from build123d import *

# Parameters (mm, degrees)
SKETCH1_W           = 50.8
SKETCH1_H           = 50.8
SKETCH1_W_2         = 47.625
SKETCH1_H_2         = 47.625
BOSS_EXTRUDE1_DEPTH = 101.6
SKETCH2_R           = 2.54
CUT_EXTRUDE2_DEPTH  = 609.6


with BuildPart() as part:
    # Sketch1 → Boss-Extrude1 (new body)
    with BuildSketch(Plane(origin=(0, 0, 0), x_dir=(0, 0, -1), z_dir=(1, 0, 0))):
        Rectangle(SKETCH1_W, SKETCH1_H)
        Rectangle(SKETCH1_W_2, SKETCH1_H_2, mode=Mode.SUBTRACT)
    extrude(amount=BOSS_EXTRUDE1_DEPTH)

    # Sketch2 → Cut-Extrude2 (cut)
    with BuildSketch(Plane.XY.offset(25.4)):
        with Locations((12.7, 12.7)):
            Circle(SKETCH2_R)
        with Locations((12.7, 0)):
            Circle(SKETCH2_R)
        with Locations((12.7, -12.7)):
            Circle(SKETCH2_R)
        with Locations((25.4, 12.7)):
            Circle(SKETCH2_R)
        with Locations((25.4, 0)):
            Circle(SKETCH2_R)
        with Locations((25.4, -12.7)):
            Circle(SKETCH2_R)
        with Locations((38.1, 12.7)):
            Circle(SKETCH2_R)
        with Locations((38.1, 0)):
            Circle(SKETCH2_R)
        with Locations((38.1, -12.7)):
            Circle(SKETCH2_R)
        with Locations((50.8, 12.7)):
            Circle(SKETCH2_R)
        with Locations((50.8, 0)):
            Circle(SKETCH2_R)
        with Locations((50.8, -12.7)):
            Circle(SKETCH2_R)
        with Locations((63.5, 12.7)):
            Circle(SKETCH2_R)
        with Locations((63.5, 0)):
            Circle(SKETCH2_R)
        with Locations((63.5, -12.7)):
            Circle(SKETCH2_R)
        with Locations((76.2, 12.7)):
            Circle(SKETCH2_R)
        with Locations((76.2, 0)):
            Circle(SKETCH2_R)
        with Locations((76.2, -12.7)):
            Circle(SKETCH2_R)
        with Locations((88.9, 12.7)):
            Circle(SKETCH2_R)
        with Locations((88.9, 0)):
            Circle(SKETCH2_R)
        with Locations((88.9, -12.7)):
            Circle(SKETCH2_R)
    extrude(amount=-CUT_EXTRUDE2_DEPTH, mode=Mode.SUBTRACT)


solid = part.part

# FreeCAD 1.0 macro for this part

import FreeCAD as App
import Part
import Sketcher
from FreeCAD import Vector
Q = App.Units.Quantity

doc = App.newDocument("Part")
body = doc.addObject("PartDesign::Body", "Body")

sketch1 = body.newObject("Sketcher::SketchObject", "Sketch")
sketch1.AttachmentSupport = (doc.getObject("YZ_Plane"), [""])
sketch1.MapMode = "FlatFace"
sketch1.addGeometry(Part.LineSegment(Vector(25, 25, 0), Vector(-25, 25, 0)), False)
sketch1.addGeometry(Part.LineSegment(Vector(-25, 25, 0), Vector(-25, -25, 0)), False)
sketch1.addGeometry(Part.LineSegment(Vector(-25, -25, 0), Vector(25, -25, 0)), False)
sketch1.addGeometry(Part.LineSegment(Vector(25, -25, 0), Vector(25, 25, 0)), False)
sketch1.addGeometry(Part.LineSegment(Vector(-24, -24, 0), Vector(-24, 24, 0)), False)
sketch1.addGeometry(Part.LineSegment(Vector(-24, 24, 0), Vector(24, 24, 0)), False)
sketch1.addGeometry(Part.LineSegment(Vector(24, 24, 0), Vector(24, -24, 0)), False)
sketch1.addGeometry(Part.LineSegment(Vector(24, -24, 0), Vector(-24, -24, 0)), False)
sketch1.addConstraint(Sketcher.Constraint("Coincident", 0, 2, 1, 1))
sketch1.addConstraint(Sketcher.Constraint("Coincident", 1, 2, 2, 1))
sketch1.addConstraint(Sketcher.Constraint("Coincident", 2, 2, 3, 1))
sketch1.addConstraint(Sketcher.Constraint("Coincident", 3, 2, 0, 1))
sketch1.addConstraint(Sketcher.Constraint("Coincident", 4, 2, 5, 1))
sketch1.addConstraint(Sketcher.Constraint("Coincident", 5, 2, 6, 1))
sketch1.addConstraint(Sketcher.Constraint("Coincident", 6, 2, 7, 1))
sketch1.addConstraint(Sketcher.Constraint("Coincident", 7, 2, 4, 1))
sketch1.addConstraint(Sketcher.Constraint("Horizontal", 0))
sketch1.addConstraint(Sketcher.Constraint("Vertical", 1))
sketch1.addConstraint(Sketcher.Constraint("Horizontal", 2))
sketch1.addConstraint(Sketcher.Constraint("Vertical", 3))
sketch1.addConstraint(Sketcher.Constraint("Vertical", 4))
sketch1.addConstraint(Sketcher.Constraint("Horizontal", 5))
sketch1.addConstraint(Sketcher.Constraint("Vertical", 6))
sketch1.addConstraint(Sketcher.Constraint("Horizontal", 7))
sketch1.addConstraint(Sketcher.Constraint("Symmetric", 0, 2, 2, 2, -1, 1))
sketch1.addConstraint(Sketcher.Constraint("Symmetric", 4, 2, 6, 2, -1, 1))
sketch1.addConstraint(Sketcher.Constraint("Equal", 2, 1))
sketch1.addConstraint(Sketcher.Constraint("Equal", 7, 4))
sketch1.addConstraint(Sketcher.Constraint("DistanceX", 0, 2, 0, 1, Q("2 in")))
sketch1.addConstraint(Sketcher.Constraint("DistanceX", 5, 1, 5, 2, Q("1.875 in")))
pad1 = body.newObject("PartDesign::Pad", "Pad")
pad1.Profile = sketch1
pad1.Length = Q("4 in")

sketch2 = body.newObject("Sketcher::SketchObject", "Sketch001")
sketch2.AttachmentSupport = (doc.getObject("XY_Plane"), [""])
sketch2.MapMode = "FlatFace"
sketch2.AttachmentOffset = App.Placement(Vector(0, 0, 1 * 25.4), App.Rotation())
sketch2.addGeometry(Part.Circle(Vector(12.7, 12.7, 0), Vector(0, 0, 1), 2.5), False)
sketch2.addGeometry(Part.Circle(Vector(12.7, 0, 0), Vector(0, 0, 1), 2.5), False)
sketch2.addGeometry(Part.Circle(Vector(12.7, -12.7, 0), Vector(0, 0, 1), 2.5), False)
sketch2.addGeometry(Part.Circle(Vector(25.4, 12.7, 0), Vector(0, 0, 1), 2.5), False)
sketch2.addGeometry(Part.Circle(Vector(25.4, 0, 0), Vector(0, 0, 1), 2.5), False)
sketch2.addGeometry(Part.Circle(Vector(25.4, -12.7, 0), Vector(0, 0, 1), 2.5), False)
sketch2.addGeometry(Part.Circle(Vector(38.1, 12.7, 0), Vector(0, 0, 1), 2.5), False)
sketch2.addGeometry(Part.Circle(Vector(38.1, 0, 0), Vector(0, 0, 1), 2.5), False)
sketch2.addGeometry(Part.Circle(Vector(38.1, -12.7, 0), Vector(0, 0, 1), 2.5), False)
sketch2.addGeometry(Part.Circle(Vector(50.8, 12.7, 0), Vector(0, 0, 1), 2.5), False)
sketch2.addGeometry(Part.Circle(Vector(50.8, 0, 0), Vector(0, 0, 1), 2.5), False)
sketch2.addGeometry(Part.Circle(Vector(50.8, -12.7, 0), Vector(0, 0, 1), 2.5), False)
sketch2.addGeometry(Part.Circle(Vector(63.5, 12.7, 0), Vector(0, 0, 1), 2.5), False)
sketch2.addGeometry(Part.Circle(Vector(63.5, 0, 0), Vector(0, 0, 1), 2.5), False)
sketch2.addGeometry(Part.Circle(Vector(63.5, -12.7, 0), Vector(0, 0, 1), 2.5), False)
sketch2.addGeometry(Part.Circle(Vector(76.2, 12.7, 0), Vector(0, 0, 1), 2.5), False)
sketch2.addGeometry(Part.Circle(Vector(76.2, 0, 0), Vector(0, 0, 1), 2.5), False)
sketch2.addGeometry(Part.Circle(Vector(76.2, -12.7, 0), Vector(0, 0, 1), 2.5), False)
sketch2.addGeometry(Part.Circle(Vector(88.9, 12.7, 0), Vector(0, 0, 1), 2.5), False)
sketch2.addGeometry(Part.Circle(Vector(88.9, 0, 0), Vector(0, 0, 1), 2.5), False)
sketch2.addGeometry(Part.Circle(Vector(88.9, -12.7, 0), Vector(0, 0, 1), 2.5), False)
sketch2.addConstraint(Sketcher.Constraint("Equal", 0, 1))
sketch2.addConstraint(Sketcher.Constraint("Equal", 1, 2))
sketch2.addConstraint(Sketcher.Constraint("Equal", 2, 3))
sketch2.addConstraint(Sketcher.Constraint("Equal", 3, 4))
sketch2.addConstraint(Sketcher.Constraint("Equal", 4, 5))
sketch2.addConstraint(Sketcher.Constraint("Equal", 5, 6))
sketch2.addConstraint(Sketcher.Constraint("Equal", 6, 7))
sketch2.addConstraint(Sketcher.Constraint("Equal", 7, 8))
sketch2.addConstraint(Sketcher.Constraint("Equal", 8, 9))
sketch2.addConstraint(Sketcher.Constraint("Equal", 9, 10))
sketch2.addConstraint(Sketcher.Constraint("Equal", 10, 11))
sketch2.addConstraint(Sketcher.Constraint("Equal", 11, 12))
sketch2.addConstraint(Sketcher.Constraint("Equal", 12, 13))
sketch2.addConstraint(Sketcher.Constraint("Equal", 13, 14))
sketch2.addConstraint(Sketcher.Constraint("Equal", 14, 15))
sketch2.addConstraint(Sketcher.Constraint("Equal", 15, 16))
sketch2.addConstraint(Sketcher.Constraint("Equal", 16, 17))
sketch2.addConstraint(Sketcher.Constraint("Equal", 17, 18))
sketch2.addConstraint(Sketcher.Constraint("Equal", 18, 19))
sketch2.addConstraint(Sketcher.Constraint("Equal", 19, 20))
sketch2.addConstraint(Sketcher.Constraint("Symmetric", 0, 3, 2, 3, -1))
sketch2.addConstraint(Sketcher.Constraint("Symmetric", 3, 3, 5, 3, -1))
sketch2.addConstraint(Sketcher.Constraint("Symmetric", 6, 3, 8, 3, -1))
sketch2.addConstraint(Sketcher.Constraint("Symmetric", 9, 3, 11, 3, -1))
sketch2.addConstraint(Sketcher.Constraint("Symmetric", 12, 3, 14, 3, -1))
sketch2.addConstraint(Sketcher.Constraint("Symmetric", 15, 3, 17, 3, -1))
sketch2.addConstraint(Sketcher.Constraint("Symmetric", 18, 3, 20, 3, -1))
sketch2.addConstraint(Sketcher.Constraint("PointOnObject", 1, 3, -1))
sketch2.addConstraint(Sketcher.Constraint("PointOnObject", 4, 3, -1))
sketch2.addConstraint(Sketcher.Constraint("PointOnObject", 7, 3, -1))
sketch2.addConstraint(Sketcher.Constraint("PointOnObject", 10, 3, -1))
sketch2.addConstraint(Sketcher.Constraint("PointOnObject", 13, 3, -1))
sketch2.addConstraint(Sketcher.Constraint("PointOnObject", 16, 3, -1))
sketch2.addConstraint(Sketcher.Constraint("PointOnObject", 19, 3, -1))
sketch2.addConstraint(Sketcher.Constraint("Horizontal", 0, 3, 3, 3))
sketch2.addConstraint(Sketcher.Constraint("Horizontal", 3, 3, 6, 3))
sketch2.addConstraint(Sketcher.Constraint("Horizontal", 6, 3, 9, 3))
sketch2.addConstraint(Sketcher.Constraint("Horizontal", 9, 3, 12, 3))
sketch2.addConstraint(Sketcher.Constraint("Horizontal", 12, 3, 15, 3))
sketch2.addConstraint(Sketcher.Constraint("Horizontal", 15, 3, 18, 3))
sketch2.addConstraint(Sketcher.Constraint("Vertical", 0, 3, 1, 3))
sketch2.addConstraint(Sketcher.Constraint("Vertical", 3, 3, 4, 3))
sketch2.addConstraint(Sketcher.Constraint("Vertical", 6, 3, 7, 3))
sketch2.addConstraint(Sketcher.Constraint("Vertical", 9, 3, 10, 3))
sketch2.addConstraint(Sketcher.Constraint("Vertical", 12, 3, 13, 3))
sketch2.addConstraint(Sketcher.Constraint("Vertical", 15, 3, 16, 3))
sketch2.addConstraint(Sketcher.Constraint("Vertical", 18, 3, 19, 3))
sketch2.addConstraint(Sketcher.Constraint("Diameter", 0, Q("0.2 in")))
sketch2.addConstraint(Sketcher.Constraint("DistanceX", -1, 1, 3, 3, Q("1 in")))
sketch2.addConstraint(Sketcher.Constraint("DistanceX", -1, 1, 9, 3, Q("2 in")))
sketch2.addConstraint(Sketcher.Constraint("DistanceX", -1, 1, 15, 3, Q("3 in")))
sketch2.addConstraint(Sketcher.Constraint("DistanceY", 2, 3, 0, 3, Q("1 in")))
sketch2.addConstraint(Sketcher.Constraint("DistanceX", 0, 3, 6, 3, Q("1 in")))
sketch2.addConstraint(Sketcher.Constraint("DistanceX", 6, 3, 12, 3, Q("1 in")))
sketch2.addConstraint(Sketcher.Constraint("DistanceX", 12, 3, 18, 3, Q("1 in")))
sketch2.addConstraint(Sketcher.Constraint("DistanceX", -1, 1, 0, 3, Q("0.5 in")))
pocket1 = body.newObject("PartDesign::Pocket", "Pocket")
pocket1.Profile = sketch2
pocket1.Length = Q("24 in")

doc.recompute()
